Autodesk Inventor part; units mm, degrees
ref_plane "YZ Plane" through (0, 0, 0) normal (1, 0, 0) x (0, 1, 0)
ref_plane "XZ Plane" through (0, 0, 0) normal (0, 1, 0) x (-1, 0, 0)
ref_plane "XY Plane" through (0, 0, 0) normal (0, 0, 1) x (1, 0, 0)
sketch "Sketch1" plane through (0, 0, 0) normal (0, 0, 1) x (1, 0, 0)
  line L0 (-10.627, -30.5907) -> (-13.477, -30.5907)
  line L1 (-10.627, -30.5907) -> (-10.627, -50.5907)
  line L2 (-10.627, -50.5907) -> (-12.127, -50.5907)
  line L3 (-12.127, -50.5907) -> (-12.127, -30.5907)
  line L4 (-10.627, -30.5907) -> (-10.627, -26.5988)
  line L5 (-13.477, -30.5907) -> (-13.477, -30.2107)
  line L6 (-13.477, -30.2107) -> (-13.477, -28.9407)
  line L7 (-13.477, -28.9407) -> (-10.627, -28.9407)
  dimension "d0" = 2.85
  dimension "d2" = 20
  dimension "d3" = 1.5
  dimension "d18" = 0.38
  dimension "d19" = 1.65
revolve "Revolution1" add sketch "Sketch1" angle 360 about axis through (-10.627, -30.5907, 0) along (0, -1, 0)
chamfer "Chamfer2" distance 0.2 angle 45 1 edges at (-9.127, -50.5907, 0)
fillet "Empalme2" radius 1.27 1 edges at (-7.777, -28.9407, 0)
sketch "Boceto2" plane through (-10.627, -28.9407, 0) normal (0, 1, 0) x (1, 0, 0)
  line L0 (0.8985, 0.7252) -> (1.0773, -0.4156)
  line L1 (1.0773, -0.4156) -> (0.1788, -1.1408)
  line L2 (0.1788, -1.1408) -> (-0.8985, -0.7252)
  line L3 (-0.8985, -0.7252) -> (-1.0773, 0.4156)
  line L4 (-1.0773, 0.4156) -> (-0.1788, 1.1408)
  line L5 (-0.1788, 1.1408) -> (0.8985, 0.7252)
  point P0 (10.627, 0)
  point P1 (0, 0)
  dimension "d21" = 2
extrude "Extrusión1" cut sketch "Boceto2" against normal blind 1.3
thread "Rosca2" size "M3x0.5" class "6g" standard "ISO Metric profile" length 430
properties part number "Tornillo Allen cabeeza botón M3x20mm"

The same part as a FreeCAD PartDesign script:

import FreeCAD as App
import Part
import Sketcher
Q = App.Units.Quantity


def edges_at(feature, points):
    """Names of the edges that pass closest to the given points."""
    edges = feature.Shape.Edges
    near = lambda p: min(range(len(edges)), key=lambda i: edges[i].distToShape(Part.Vertex(*p))[0])
    return sorted({f"Edge{near(p) + 1}" for p in points})

doc = App.newDocument("Part")
body = doc.addObject("PartDesign::Body", "Body")

# Sketch on XY plane
sketch1 = body.newObject("Sketcher::SketchObject", "Sketch")
sketch1.AttachmentSupport = (doc.getObject("XY_Plane"), [""])
sketch1.MapMode = "FlatFace"
sketch1.addGeometry([
    Part.LineSegment(App.Vector(-10.627, -50.5907, 0), App.Vector(-10.627, -28.9407, 0)),  # 0
    Part.LineSegment(App.Vector(-10.627, -28.9407, 0), App.Vector(-13.477, -28.9407, 0)),  # 1
    Part.LineSegment(App.Vector(-13.477, -28.9407, 0), App.Vector(-13.477, -30.5907, 0)),  # 2
    Part.LineSegment(App.Vector(-13.477, -30.5907, 0), App.Vector(-12.127, -30.5907, 0)),  # 3
    Part.LineSegment(App.Vector(-12.127, -30.5907, 0), App.Vector(-12.127, -50.5907, 0)),  # 4
    Part.LineSegment(App.Vector(-12.127, -50.5907, 0), App.Vector(-10.627, -50.5907, 0)),  # 5
], False)
sketch1.addGeometry(Part.LineSegment(App.Vector(-10.627, -28.9407, 0), App.Vector(-10.627, -50.5907, 0)), True)  # axis
sketch1.addConstraint([
    Sketcher.Constraint("Coincident", 0, 2, 1, 1),
    Sketcher.Constraint("Coincident", 1, 2, 2, 1),
    Sketcher.Constraint("Coincident", 2, 2, 3, 1),
    Sketcher.Constraint("Coincident", 3, 2, 4, 1),
    Sketcher.Constraint("Coincident", 4, 2, 5, 1),
    Sketcher.Constraint("Coincident", 5, 2, 0, 1),
    Sketcher.Constraint("Vertical", 0),
    Sketcher.Constraint("Horizontal", 1),
    Sketcher.Constraint("Vertical", 2),
    Sketcher.Constraint("Horizontal", 3),
    Sketcher.Constraint("Vertical", 4),
    Sketcher.Constraint("Horizontal", 5),
    Sketcher.Constraint("Vertical", 6),
    Sketcher.Constraint("Coincident", 6, 1, 0, 2),
    Sketcher.Constraint("Horizontal", 4, 2, 6, 2),
    Sketcher.Constraint("DistanceY", 4, 2, 4, 1, Q("20 mm")),
    Sketcher.Constraint("DistanceX", 5, 1, 5, 2, Q("1.5 mm")),
    Sketcher.Constraint("DistanceX", 1, 2, 1, 1, Q("2.85 mm")),
    Sketcher.Constraint("DistanceY", 2, 2, 2, 1, Q("1.65 mm")),
    Sketcher.Constraint("DistanceX", 0, 2, -1, 1, Q("10.627 mm")),
    Sketcher.Constraint("DistanceY", 0, 2, -1, 1, Q("28.9407 mm")),
])
revolution = body.newObject("PartDesign::Revolution", "Revolution")
revolution.Profile = sketch1
revolution.ReferenceAxis = (sketch1, ["Axis0"])
revolution.Angle = 360
doc.recompute()

chamfer = body.newObject("PartDesign::Chamfer", "Chamfer")
chamfer.Base = (revolution, edges_at(revolution, [(-9.127, -50.591, 0)]))
chamfer.Size = 0.2
doc.recompute()

fillet = body.newObject("PartDesign::Fillet", "Fillet")
fillet.Base = (chamfer, edges_at(chamfer, [(-7.777, -28.941, 0)]))
fillet.Radius = 1.27

# Sketch on XZ plane
sketch2 = body.newObject("Sketcher::SketchObject", "Sketch001")
sketch2.AttachmentSupport = (doc.getObject("XZ_Plane"), [""])
sketch2.MapMode = "FlatFace"
sketch2.AttachmentOffset = App.Placement(App.Vector(0, 0, 28.9407), App.Rotation())
sketch2.addGeometry([
    Part.LineSegment(App.Vector(-9.5497, 0.4156, 0), App.Vector(-9.7285, -0.7252, 0)),  # 0
    Part.LineSegment(App.Vector(-9.7285, -0.7252, 0), App.Vector(-10.8058, -1.1408, 0)),  # 1
    Part.LineSegment(App.Vector(-10.8058, -1.1408, 0), App.Vector(-11.7043, -0.4156, 0)),  # 2
    Part.LineSegment(App.Vector(-11.7043, -0.4156, 0), App.Vector(-11.5255, 0.7252, 0)),  # 3
    Part.LineSegment(App.Vector(-11.5255, 0.7252, 0), App.Vector(-10.4482, 1.1408, 0)),  # 4
    Part.LineSegment(App.Vector(-10.4482, 1.1408, 0), App.Vector(-9.5497, 0.4156, 0)),  # 5
], False)
sketch2.addConstraint([
    Sketcher.Constraint("Coincident", 0, 2, 1, 1),
    Sketcher.Constraint("Coincident", 1, 2, 2, 1),
    Sketcher.Constraint("Coincident", 2, 2, 3, 1),
    Sketcher.Constraint("Coincident", 3, 2, 4, 1),
    Sketcher.Constraint("Coincident", 4, 2, 5, 1),
    Sketcher.Constraint("Coincident", 5, 2, 0, 1),
    Sketcher.Constraint("Parallel", 0, 3),
    Sketcher.Constraint("Parallel", 1, 4),
    Sketcher.Constraint("Parallel", 2, 5),
    Sketcher.Constraint("Equal", 0, 1),
    Sketcher.Constraint("Equal", 1, 2),
    Sketcher.Constraint("Equal", 2, 3),
    Sketcher.Constraint("DistanceY", 1, 2, 3, 2, Q("1.866 mm")),
    Sketcher.Constraint("DistanceX", 3, 2, 0, 2, Q("1.797 mm")),
    Sketcher.Constraint("DistanceX", 2, 2, 4, 2, Q("1.256 mm")),
    Sketcher.Constraint("Distance", 0, Q("1.1547 mm")),
    Sketcher.Constraint("DistanceX", 0, 2, -1, 1, Q("9.7285 mm")),
    Sketcher.Constraint("DistanceY", 0, 2, -1, 1, Q("0.7252 mm")),
])
pocket1 = body.newObject("PartDesign::Pocket", "Pocket")
pocket1.Profile = sketch2
pocket1.Length = 1.3
pocket1.Reversed = True

doc.recompute()
